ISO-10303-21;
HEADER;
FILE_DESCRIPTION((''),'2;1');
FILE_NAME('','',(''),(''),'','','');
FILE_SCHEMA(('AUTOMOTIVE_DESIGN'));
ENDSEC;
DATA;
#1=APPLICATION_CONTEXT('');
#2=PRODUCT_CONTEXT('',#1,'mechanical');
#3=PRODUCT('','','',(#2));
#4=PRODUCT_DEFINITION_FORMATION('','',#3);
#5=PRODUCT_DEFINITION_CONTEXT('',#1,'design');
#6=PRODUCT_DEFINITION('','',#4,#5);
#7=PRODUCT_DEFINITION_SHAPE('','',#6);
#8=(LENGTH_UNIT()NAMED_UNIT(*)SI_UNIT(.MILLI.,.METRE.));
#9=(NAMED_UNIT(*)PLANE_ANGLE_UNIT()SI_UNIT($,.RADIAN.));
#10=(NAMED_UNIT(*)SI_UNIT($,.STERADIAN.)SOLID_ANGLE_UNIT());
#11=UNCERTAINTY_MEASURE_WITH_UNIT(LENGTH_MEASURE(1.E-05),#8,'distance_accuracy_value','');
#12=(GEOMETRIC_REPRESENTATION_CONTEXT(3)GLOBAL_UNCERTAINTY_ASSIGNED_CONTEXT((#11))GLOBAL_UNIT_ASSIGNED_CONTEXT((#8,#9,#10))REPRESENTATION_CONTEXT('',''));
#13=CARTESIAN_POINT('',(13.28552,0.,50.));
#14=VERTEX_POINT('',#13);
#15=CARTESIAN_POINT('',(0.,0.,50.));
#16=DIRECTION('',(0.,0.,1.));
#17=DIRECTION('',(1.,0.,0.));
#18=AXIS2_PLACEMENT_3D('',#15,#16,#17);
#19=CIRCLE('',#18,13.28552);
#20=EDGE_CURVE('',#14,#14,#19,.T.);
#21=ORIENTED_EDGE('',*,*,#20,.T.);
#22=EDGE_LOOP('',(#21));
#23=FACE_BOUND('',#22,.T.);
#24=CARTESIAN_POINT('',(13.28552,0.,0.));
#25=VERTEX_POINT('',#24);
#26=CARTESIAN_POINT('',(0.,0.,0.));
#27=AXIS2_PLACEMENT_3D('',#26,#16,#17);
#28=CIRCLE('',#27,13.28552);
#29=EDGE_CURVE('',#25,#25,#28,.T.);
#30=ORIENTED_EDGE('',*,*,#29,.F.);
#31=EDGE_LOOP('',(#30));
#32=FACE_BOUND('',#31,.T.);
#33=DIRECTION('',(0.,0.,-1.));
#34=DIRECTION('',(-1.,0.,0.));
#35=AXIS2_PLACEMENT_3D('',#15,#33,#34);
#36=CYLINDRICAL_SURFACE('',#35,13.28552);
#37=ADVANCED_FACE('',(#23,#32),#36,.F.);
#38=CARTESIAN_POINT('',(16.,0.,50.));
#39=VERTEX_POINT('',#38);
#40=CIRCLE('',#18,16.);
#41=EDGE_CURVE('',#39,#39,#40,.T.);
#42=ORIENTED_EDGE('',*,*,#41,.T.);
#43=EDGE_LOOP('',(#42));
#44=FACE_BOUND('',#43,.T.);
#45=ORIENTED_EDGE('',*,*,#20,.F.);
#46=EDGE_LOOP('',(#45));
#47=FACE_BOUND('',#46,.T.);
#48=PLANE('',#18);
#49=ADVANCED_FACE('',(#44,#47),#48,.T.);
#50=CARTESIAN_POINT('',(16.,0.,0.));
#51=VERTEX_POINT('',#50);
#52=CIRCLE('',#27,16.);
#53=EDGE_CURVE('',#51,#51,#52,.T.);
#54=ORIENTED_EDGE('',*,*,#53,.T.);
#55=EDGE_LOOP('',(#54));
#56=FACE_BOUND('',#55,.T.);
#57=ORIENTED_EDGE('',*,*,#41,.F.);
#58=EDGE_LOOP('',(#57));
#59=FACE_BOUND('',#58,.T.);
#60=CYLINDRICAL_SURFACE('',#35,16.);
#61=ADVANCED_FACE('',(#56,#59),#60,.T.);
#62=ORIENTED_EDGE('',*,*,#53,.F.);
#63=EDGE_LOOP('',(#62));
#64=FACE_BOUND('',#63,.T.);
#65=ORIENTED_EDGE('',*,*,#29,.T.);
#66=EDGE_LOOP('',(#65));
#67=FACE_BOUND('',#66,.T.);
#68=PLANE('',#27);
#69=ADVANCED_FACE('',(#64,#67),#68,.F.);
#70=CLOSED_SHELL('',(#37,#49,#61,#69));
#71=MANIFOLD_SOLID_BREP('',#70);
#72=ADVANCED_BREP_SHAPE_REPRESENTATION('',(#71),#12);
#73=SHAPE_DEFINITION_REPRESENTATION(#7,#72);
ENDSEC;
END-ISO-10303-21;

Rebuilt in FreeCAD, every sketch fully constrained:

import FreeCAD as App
import Part
import Sketcher

doc = App.newDocument("Part")
body = doc.addObject("PartDesign::Body", "Body")

# Sketch on XY plane
sketch1 = doc.addObject("Sketcher::SketchObject", "Sketch")
body.addObject(sketch1)
sketch1.AttachmentSupport = (doc.XY_Plane, [""])
sketch1.MapMode = "FlatFace"
sketch1.addGeometry([
    Part.Circle(App.Vector(0, 0, 0), App.Vector(0, 0, 1), 16),
    Part.Circle(App.Vector(0, 0, 0), App.Vector(0, 0, 1), 13),
], False)
sketch1.addConstraint([
    Sketcher.Constraint("Coincident", 0, 3, -1, 1),
    Sketcher.Constraint("Coincident", 1, 3, -1, 1),
    Sketcher.Constraint("Diameter", 0, 32.0),
    Sketcher.Constraint("Diameter", 1, 26.57104),
])
pad1 = doc.addObject("PartDesign::Pad", "Pad")
body.addObject(pad1)
pad1.Profile = sketch1
pad1.Length = 50

doc.recompute()
